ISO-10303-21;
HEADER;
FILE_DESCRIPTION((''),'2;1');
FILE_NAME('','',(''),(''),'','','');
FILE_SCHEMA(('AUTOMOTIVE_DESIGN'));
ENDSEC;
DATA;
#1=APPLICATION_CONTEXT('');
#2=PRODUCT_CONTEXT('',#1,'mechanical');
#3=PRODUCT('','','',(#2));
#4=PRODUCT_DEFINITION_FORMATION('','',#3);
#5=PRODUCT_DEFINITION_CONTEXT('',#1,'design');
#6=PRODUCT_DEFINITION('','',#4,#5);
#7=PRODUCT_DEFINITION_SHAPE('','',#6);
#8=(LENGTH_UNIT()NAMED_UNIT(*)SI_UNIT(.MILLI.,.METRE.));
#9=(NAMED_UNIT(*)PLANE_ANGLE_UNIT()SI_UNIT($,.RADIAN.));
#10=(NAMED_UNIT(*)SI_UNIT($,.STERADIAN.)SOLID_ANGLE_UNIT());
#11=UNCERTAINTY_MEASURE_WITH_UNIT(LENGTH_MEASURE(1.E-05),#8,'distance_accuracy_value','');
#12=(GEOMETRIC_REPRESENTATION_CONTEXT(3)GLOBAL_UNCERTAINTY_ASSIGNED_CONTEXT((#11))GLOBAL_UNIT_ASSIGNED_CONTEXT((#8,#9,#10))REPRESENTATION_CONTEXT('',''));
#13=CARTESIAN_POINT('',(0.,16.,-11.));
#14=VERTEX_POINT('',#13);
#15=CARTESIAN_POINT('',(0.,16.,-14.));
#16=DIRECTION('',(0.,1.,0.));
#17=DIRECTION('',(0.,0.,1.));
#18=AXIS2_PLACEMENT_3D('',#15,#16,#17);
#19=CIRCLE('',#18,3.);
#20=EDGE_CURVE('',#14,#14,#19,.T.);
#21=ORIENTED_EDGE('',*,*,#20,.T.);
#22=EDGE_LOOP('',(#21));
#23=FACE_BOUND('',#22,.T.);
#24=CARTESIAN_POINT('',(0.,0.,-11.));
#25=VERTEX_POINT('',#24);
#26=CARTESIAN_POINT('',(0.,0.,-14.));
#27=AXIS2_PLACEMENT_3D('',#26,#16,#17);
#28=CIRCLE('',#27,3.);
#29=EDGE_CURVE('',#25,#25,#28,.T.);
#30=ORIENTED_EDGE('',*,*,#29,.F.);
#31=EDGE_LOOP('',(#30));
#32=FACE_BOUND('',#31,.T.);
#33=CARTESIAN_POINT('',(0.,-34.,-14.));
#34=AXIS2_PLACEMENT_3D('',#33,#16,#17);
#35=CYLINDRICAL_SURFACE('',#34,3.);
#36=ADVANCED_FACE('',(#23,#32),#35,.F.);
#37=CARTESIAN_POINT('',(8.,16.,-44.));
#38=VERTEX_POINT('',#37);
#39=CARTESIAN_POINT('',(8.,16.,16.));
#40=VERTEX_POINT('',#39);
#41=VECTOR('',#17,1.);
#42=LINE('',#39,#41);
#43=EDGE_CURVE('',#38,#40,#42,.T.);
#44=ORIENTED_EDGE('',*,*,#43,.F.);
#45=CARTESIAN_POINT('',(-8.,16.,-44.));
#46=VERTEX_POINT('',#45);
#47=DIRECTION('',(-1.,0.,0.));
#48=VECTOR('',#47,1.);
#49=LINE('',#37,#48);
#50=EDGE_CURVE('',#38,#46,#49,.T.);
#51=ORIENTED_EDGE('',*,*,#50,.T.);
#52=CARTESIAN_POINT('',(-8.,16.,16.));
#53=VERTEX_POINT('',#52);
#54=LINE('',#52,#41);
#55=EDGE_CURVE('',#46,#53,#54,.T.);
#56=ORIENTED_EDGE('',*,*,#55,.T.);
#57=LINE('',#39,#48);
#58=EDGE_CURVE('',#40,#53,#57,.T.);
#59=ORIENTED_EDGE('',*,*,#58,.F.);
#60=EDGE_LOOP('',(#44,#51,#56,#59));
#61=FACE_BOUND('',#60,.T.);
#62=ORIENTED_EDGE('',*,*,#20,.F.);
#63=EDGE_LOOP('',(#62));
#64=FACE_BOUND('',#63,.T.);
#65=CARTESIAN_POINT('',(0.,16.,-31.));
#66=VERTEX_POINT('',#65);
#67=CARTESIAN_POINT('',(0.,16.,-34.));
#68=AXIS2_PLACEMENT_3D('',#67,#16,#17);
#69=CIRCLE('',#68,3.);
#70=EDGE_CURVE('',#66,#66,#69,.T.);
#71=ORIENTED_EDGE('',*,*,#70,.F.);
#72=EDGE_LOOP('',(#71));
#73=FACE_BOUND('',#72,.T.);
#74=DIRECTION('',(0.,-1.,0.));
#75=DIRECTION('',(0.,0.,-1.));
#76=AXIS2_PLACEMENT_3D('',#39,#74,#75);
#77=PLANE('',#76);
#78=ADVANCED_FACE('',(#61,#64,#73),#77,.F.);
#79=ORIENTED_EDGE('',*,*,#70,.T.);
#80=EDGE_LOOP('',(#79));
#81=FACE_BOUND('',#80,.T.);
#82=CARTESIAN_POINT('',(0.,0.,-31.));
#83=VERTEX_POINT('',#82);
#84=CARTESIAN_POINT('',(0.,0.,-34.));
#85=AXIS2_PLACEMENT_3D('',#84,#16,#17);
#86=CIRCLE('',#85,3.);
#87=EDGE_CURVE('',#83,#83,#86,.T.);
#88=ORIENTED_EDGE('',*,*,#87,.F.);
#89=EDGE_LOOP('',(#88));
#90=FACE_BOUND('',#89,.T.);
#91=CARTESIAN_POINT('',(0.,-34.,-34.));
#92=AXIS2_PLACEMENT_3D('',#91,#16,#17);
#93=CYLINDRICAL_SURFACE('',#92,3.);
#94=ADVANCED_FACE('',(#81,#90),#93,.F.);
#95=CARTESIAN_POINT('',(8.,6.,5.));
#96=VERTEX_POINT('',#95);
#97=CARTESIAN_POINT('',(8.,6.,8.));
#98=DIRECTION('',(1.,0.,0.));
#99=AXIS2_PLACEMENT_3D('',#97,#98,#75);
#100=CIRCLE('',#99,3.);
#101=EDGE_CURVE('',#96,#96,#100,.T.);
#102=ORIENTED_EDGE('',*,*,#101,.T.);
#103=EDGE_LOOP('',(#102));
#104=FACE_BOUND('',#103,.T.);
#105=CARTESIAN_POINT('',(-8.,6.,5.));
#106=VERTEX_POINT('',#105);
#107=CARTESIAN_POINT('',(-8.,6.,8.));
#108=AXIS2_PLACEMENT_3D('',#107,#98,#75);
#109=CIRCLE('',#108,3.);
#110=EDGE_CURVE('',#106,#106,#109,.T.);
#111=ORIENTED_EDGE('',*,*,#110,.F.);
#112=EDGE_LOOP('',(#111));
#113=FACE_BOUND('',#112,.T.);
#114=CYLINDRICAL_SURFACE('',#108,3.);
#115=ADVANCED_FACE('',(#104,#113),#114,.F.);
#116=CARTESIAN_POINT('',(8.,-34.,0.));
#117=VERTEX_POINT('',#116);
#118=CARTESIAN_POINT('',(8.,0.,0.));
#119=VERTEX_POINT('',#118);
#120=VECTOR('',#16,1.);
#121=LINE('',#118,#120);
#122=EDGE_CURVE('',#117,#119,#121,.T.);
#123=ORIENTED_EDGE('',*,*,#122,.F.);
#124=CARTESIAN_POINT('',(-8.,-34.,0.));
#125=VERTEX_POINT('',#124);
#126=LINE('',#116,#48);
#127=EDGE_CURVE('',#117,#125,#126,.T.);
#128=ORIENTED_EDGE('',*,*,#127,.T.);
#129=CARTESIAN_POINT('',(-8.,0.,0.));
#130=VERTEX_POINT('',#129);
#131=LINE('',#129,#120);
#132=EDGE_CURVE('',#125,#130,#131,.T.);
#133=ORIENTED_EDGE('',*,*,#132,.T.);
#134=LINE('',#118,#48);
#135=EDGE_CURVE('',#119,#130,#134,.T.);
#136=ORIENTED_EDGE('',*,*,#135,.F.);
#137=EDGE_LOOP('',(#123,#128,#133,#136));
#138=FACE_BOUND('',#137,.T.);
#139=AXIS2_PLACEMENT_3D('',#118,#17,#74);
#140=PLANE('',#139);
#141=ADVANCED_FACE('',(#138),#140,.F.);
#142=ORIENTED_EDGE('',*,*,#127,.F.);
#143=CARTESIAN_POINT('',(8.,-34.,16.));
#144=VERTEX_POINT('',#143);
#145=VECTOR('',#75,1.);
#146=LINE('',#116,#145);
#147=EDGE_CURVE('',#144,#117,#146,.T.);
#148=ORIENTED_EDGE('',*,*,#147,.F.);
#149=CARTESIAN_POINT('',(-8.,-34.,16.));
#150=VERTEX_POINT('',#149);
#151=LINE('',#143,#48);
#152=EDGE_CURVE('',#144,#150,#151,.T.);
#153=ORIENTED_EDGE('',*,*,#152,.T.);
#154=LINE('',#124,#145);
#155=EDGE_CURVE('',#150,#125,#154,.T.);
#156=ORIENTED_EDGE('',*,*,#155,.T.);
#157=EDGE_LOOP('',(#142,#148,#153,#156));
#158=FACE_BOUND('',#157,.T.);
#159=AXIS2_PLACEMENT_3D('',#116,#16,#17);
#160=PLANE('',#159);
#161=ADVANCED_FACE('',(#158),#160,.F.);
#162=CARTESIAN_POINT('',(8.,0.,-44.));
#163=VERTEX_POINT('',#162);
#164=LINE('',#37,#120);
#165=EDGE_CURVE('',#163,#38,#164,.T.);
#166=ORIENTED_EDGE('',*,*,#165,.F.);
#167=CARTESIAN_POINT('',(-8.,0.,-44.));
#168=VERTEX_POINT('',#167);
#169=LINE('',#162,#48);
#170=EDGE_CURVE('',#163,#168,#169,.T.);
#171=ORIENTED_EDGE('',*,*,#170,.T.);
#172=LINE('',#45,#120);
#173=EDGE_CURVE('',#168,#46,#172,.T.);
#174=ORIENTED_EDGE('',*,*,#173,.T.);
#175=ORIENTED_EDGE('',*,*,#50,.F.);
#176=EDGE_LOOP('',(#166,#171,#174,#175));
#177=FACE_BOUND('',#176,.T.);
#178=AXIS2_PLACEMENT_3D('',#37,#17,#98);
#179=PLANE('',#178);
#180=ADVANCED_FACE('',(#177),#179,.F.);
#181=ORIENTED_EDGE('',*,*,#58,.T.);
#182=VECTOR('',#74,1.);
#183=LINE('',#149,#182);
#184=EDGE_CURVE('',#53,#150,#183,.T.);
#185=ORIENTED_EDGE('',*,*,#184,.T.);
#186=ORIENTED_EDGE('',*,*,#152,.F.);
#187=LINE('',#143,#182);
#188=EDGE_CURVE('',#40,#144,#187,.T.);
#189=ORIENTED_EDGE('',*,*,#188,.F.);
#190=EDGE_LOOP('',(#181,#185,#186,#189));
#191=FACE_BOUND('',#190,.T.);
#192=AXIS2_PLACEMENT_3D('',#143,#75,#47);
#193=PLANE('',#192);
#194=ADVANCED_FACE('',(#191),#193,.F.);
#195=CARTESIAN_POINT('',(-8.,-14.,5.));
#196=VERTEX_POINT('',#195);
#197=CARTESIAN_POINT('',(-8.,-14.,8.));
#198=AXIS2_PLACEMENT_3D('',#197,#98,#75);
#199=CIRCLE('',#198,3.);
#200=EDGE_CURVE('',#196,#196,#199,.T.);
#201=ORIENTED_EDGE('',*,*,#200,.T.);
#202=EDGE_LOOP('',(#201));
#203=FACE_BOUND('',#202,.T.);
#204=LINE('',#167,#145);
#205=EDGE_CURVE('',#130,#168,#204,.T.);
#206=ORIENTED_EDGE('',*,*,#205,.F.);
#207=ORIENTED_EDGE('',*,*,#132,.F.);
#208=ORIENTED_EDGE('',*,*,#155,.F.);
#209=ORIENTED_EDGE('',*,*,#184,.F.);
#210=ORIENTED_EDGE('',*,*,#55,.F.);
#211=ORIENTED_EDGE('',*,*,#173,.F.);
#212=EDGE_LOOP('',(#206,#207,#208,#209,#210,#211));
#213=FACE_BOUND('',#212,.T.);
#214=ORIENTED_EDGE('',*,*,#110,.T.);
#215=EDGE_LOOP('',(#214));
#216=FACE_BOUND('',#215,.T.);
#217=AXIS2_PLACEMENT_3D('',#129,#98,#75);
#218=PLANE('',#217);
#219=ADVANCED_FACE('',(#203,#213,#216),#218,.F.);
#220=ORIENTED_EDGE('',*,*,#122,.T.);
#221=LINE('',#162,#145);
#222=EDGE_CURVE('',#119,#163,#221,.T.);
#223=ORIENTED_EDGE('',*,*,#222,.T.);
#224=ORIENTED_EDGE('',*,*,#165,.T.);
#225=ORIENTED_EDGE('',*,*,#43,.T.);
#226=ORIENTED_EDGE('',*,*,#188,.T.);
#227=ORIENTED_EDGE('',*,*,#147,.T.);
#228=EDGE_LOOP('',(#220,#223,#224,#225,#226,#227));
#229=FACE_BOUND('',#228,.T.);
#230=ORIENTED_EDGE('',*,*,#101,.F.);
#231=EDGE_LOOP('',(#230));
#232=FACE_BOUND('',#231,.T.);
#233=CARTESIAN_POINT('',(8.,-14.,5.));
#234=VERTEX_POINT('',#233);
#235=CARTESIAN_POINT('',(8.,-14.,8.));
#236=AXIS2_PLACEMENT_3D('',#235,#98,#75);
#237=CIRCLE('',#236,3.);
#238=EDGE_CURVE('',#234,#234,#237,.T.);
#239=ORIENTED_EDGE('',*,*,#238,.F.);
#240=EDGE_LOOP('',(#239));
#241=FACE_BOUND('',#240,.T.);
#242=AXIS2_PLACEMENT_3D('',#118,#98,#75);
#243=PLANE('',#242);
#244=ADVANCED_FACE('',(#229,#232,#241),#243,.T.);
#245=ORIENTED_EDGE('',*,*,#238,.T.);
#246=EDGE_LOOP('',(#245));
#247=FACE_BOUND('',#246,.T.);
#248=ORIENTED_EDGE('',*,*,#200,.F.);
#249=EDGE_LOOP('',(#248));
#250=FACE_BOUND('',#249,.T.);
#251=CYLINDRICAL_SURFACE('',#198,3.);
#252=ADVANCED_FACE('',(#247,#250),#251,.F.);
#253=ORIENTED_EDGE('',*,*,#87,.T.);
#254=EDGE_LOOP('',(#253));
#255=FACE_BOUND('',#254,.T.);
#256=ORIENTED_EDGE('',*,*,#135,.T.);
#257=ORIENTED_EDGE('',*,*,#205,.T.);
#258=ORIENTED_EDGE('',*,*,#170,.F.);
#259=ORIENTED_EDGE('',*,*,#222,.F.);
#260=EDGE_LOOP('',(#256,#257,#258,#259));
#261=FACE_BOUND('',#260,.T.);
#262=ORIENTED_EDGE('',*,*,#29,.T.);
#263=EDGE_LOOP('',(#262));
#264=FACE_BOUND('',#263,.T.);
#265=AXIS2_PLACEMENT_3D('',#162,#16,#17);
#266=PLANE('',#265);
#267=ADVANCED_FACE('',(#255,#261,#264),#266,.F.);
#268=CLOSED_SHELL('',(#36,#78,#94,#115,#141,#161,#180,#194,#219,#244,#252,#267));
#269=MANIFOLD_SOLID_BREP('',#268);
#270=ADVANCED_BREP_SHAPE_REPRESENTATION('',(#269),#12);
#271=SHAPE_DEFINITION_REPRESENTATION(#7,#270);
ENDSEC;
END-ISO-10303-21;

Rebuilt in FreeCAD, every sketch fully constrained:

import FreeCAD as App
import Part
import Sketcher

V = App.Vector

doc = App.newDocument("Part")
params = doc.addObject("Spreadsheet::Sheet", "Params")
for row, (alias, value) in enumerate([
    ("sketch1_width", "34 mm"),
    ("sketch1_width2", "16 mm"),
    ("sketch1_height", "44 mm"),
    ("pad1_length", "16 mm"),
    ("sketch2_diameter", "6 mm"),
    ("sketch3_diameter", "6 mm"),
], start=1):
    params.set(f"A{row}", alias)
    params.set(f"B{row}", "=" + value)
    params.setAlias(f"B{row}", alias)

body = doc.addObject("PartDesign::Body", "Body")

sketch1 = doc.addObject("Sketcher::SketchObject", "Sketch")
body.addObject(sketch1)
sketch1.AttachmentSupport = (doc.YZ_Plane, [""])
sketch1.MapMode = "FlatFace"
sketch1.addGeometry(Part.LineSegment(V(-34, 0, 0), V(0, 0, 0)), False)
sketch1.addGeometry(Part.LineSegment(V(0, 0, 0), V(0, -44, 0)), False)
sketch1.addGeometry(Part.LineSegment(V(0, -44, 0), V(16, -44, 0)), False)
sketch1.addGeometry(Part.LineSegment(V(16, -44, 0), V(16, 16, 0)), False)
sketch1.addGeometry(Part.LineSegment(V(16, 16, 0), V(-34, 16, 0)), False)
sketch1.addGeometry(Part.LineSegment(V(-34, 16, 0), V(-34, 0, 0)), False)
sketch1.addConstraint(Sketcher.Constraint("Coincident", 0, 2, 1, 1))
sketch1.addConstraint(Sketcher.Constraint("Coincident", 1, 2, 2, 1))
sketch1.addConstraint(Sketcher.Constraint("Coincident", 2, 2, 3, 1))
sketch1.addConstraint(Sketcher.Constraint("Coincident", 3, 2, 4, 1))
sketch1.addConstraint(Sketcher.Constraint("Coincident", 4, 2, 5, 1))
sketch1.addConstraint(Sketcher.Constraint("Coincident", 5, 2, 0, 1))
sketch1.addConstraint(Sketcher.Constraint("Horizontal", 0))
sketch1.addConstraint(Sketcher.Constraint("Vertical", 1))
sketch1.addConstraint(Sketcher.Constraint("Horizontal", 2))
sketch1.addConstraint(Sketcher.Constraint("Vertical", 3))
sketch1.addConstraint(Sketcher.Constraint("Horizontal", 4))
sketch1.addConstraint(Sketcher.Constraint("Vertical", 5))
sketch1.addConstraint(Sketcher.Constraint("Coincident", 0, 2, -1, 1))
sketch1.addConstraint(Sketcher.Constraint("Equal", 2, 5))
sketch1.addConstraint(Sketcher.Constraint("DistanceX", 0, 1, 0, 2, 34.0))
sketch1.addConstraint(Sketcher.Constraint("DistanceX", 2, 1, 2, 2, 16.0))
sketch1.addConstraint(Sketcher.Constraint("DistanceY", 1, 2, 1, 1, 44.0))
sketch1.setExpression("Constraints[14]", "Params.sketch1_width")
sketch1.setExpression("Constraints[15]", "Params.sketch1_width2")
sketch1.setExpression("Constraints[16]", "Params.sketch1_height")
pad1 = doc.addObject("PartDesign::Pad", "Pad")
body.addObject(pad1)
pad1.Profile = sketch1
pad1.setExpression("Length", "Params.pad1_length")
pad1.Midplane = True

sketch2 = doc.addObject("Sketcher::SketchObject", "Sketch001")
body.addObject(sketch2)
sketch2.AttachmentSupport = (doc.YZ_Plane, [""])
sketch2.MapMode = "FlatFace"
sketch2.AttachmentOffset = App.Placement(V(0, 0, 8), App.Rotation())
sketch2.addGeometry(Part.Circle(V(6, 8, 0), V(0, 0, 1), 3), False)
sketch2.addGeometry(Part.Circle(V(-14, 8, 0), V(0, 0, 1), 3), False)
sketch2.addConstraint(Sketcher.Constraint("Equal", 0, 1))
sketch2.addConstraint(Sketcher.Constraint("Horizontal", 0, 3, 1, 3))
sketch2.addConstraint(Sketcher.Constraint("Diameter", 0, 6.0))
sketch2.addConstraint(Sketcher.Constraint("DistanceX", -1, 1, 0, 3, 6.0))
sketch2.addConstraint(Sketcher.Constraint("DistanceY", -1, 1, 0, 3, 8.0))
sketch2.addConstraint(Sketcher.Constraint("DistanceX", 1, 3, -1, 1, 14.0))
sketch2.setExpression("Constraints[2]", "Params.sketch2_diameter")
pocket1 = doc.addObject("PartDesign::Pocket", "Pocket")
body.addObject(pocket1)
pocket1.Profile = sketch2
pocket1.Type = "ThroughAll"

sketch3 = doc.addObject("Sketcher::SketchObject", "Sketch002")
body.addObject(sketch3)
sketch3.AttachmentSupport = (doc.XZ_Plane, [""])
sketch3.MapMode = "FlatFace"
sketch3.AttachmentOffset = App.Placement(V(0, 0, -16), App.Rotation())
sketch3.addGeometry(Part.Circle(V(0, -34, 0), V(0, 0, 1), 3), False)
sketch3.addGeometry(Part.Circle(V(0, -14, 0), V(0, 0, 1), 3), False)
sketch3.addConstraint(Sketcher.Constraint("Equal", 0, 1))
sketch3.addConstraint(Sketcher.Constraint("PointOnObject", 0, 3, -2))
sketch3.addConstraint(Sketcher.Constraint("PointOnObject", 1, 3, -2))
sketch3.addConstraint(Sketcher.Constraint("Diameter", 0, 6.0))
sketch3.addConstraint(Sketcher.Constraint("DistanceY", 0, 3, -1, 1, 34.0))
sketch3.addConstraint(Sketcher.Constraint("DistanceY", 1, 3, -1, 1, 14.0))
sketch3.setExpression("Constraints[3]", "Params.sketch3_diameter")
pocket2 = doc.addObject("PartDesign::Pocket", "Pocket001")
body.addObject(pocket2)
pocket2.Profile = sketch3
pocket2.Type = "ThroughAll"
pocket2.Reversed = True

doc.recompute()
